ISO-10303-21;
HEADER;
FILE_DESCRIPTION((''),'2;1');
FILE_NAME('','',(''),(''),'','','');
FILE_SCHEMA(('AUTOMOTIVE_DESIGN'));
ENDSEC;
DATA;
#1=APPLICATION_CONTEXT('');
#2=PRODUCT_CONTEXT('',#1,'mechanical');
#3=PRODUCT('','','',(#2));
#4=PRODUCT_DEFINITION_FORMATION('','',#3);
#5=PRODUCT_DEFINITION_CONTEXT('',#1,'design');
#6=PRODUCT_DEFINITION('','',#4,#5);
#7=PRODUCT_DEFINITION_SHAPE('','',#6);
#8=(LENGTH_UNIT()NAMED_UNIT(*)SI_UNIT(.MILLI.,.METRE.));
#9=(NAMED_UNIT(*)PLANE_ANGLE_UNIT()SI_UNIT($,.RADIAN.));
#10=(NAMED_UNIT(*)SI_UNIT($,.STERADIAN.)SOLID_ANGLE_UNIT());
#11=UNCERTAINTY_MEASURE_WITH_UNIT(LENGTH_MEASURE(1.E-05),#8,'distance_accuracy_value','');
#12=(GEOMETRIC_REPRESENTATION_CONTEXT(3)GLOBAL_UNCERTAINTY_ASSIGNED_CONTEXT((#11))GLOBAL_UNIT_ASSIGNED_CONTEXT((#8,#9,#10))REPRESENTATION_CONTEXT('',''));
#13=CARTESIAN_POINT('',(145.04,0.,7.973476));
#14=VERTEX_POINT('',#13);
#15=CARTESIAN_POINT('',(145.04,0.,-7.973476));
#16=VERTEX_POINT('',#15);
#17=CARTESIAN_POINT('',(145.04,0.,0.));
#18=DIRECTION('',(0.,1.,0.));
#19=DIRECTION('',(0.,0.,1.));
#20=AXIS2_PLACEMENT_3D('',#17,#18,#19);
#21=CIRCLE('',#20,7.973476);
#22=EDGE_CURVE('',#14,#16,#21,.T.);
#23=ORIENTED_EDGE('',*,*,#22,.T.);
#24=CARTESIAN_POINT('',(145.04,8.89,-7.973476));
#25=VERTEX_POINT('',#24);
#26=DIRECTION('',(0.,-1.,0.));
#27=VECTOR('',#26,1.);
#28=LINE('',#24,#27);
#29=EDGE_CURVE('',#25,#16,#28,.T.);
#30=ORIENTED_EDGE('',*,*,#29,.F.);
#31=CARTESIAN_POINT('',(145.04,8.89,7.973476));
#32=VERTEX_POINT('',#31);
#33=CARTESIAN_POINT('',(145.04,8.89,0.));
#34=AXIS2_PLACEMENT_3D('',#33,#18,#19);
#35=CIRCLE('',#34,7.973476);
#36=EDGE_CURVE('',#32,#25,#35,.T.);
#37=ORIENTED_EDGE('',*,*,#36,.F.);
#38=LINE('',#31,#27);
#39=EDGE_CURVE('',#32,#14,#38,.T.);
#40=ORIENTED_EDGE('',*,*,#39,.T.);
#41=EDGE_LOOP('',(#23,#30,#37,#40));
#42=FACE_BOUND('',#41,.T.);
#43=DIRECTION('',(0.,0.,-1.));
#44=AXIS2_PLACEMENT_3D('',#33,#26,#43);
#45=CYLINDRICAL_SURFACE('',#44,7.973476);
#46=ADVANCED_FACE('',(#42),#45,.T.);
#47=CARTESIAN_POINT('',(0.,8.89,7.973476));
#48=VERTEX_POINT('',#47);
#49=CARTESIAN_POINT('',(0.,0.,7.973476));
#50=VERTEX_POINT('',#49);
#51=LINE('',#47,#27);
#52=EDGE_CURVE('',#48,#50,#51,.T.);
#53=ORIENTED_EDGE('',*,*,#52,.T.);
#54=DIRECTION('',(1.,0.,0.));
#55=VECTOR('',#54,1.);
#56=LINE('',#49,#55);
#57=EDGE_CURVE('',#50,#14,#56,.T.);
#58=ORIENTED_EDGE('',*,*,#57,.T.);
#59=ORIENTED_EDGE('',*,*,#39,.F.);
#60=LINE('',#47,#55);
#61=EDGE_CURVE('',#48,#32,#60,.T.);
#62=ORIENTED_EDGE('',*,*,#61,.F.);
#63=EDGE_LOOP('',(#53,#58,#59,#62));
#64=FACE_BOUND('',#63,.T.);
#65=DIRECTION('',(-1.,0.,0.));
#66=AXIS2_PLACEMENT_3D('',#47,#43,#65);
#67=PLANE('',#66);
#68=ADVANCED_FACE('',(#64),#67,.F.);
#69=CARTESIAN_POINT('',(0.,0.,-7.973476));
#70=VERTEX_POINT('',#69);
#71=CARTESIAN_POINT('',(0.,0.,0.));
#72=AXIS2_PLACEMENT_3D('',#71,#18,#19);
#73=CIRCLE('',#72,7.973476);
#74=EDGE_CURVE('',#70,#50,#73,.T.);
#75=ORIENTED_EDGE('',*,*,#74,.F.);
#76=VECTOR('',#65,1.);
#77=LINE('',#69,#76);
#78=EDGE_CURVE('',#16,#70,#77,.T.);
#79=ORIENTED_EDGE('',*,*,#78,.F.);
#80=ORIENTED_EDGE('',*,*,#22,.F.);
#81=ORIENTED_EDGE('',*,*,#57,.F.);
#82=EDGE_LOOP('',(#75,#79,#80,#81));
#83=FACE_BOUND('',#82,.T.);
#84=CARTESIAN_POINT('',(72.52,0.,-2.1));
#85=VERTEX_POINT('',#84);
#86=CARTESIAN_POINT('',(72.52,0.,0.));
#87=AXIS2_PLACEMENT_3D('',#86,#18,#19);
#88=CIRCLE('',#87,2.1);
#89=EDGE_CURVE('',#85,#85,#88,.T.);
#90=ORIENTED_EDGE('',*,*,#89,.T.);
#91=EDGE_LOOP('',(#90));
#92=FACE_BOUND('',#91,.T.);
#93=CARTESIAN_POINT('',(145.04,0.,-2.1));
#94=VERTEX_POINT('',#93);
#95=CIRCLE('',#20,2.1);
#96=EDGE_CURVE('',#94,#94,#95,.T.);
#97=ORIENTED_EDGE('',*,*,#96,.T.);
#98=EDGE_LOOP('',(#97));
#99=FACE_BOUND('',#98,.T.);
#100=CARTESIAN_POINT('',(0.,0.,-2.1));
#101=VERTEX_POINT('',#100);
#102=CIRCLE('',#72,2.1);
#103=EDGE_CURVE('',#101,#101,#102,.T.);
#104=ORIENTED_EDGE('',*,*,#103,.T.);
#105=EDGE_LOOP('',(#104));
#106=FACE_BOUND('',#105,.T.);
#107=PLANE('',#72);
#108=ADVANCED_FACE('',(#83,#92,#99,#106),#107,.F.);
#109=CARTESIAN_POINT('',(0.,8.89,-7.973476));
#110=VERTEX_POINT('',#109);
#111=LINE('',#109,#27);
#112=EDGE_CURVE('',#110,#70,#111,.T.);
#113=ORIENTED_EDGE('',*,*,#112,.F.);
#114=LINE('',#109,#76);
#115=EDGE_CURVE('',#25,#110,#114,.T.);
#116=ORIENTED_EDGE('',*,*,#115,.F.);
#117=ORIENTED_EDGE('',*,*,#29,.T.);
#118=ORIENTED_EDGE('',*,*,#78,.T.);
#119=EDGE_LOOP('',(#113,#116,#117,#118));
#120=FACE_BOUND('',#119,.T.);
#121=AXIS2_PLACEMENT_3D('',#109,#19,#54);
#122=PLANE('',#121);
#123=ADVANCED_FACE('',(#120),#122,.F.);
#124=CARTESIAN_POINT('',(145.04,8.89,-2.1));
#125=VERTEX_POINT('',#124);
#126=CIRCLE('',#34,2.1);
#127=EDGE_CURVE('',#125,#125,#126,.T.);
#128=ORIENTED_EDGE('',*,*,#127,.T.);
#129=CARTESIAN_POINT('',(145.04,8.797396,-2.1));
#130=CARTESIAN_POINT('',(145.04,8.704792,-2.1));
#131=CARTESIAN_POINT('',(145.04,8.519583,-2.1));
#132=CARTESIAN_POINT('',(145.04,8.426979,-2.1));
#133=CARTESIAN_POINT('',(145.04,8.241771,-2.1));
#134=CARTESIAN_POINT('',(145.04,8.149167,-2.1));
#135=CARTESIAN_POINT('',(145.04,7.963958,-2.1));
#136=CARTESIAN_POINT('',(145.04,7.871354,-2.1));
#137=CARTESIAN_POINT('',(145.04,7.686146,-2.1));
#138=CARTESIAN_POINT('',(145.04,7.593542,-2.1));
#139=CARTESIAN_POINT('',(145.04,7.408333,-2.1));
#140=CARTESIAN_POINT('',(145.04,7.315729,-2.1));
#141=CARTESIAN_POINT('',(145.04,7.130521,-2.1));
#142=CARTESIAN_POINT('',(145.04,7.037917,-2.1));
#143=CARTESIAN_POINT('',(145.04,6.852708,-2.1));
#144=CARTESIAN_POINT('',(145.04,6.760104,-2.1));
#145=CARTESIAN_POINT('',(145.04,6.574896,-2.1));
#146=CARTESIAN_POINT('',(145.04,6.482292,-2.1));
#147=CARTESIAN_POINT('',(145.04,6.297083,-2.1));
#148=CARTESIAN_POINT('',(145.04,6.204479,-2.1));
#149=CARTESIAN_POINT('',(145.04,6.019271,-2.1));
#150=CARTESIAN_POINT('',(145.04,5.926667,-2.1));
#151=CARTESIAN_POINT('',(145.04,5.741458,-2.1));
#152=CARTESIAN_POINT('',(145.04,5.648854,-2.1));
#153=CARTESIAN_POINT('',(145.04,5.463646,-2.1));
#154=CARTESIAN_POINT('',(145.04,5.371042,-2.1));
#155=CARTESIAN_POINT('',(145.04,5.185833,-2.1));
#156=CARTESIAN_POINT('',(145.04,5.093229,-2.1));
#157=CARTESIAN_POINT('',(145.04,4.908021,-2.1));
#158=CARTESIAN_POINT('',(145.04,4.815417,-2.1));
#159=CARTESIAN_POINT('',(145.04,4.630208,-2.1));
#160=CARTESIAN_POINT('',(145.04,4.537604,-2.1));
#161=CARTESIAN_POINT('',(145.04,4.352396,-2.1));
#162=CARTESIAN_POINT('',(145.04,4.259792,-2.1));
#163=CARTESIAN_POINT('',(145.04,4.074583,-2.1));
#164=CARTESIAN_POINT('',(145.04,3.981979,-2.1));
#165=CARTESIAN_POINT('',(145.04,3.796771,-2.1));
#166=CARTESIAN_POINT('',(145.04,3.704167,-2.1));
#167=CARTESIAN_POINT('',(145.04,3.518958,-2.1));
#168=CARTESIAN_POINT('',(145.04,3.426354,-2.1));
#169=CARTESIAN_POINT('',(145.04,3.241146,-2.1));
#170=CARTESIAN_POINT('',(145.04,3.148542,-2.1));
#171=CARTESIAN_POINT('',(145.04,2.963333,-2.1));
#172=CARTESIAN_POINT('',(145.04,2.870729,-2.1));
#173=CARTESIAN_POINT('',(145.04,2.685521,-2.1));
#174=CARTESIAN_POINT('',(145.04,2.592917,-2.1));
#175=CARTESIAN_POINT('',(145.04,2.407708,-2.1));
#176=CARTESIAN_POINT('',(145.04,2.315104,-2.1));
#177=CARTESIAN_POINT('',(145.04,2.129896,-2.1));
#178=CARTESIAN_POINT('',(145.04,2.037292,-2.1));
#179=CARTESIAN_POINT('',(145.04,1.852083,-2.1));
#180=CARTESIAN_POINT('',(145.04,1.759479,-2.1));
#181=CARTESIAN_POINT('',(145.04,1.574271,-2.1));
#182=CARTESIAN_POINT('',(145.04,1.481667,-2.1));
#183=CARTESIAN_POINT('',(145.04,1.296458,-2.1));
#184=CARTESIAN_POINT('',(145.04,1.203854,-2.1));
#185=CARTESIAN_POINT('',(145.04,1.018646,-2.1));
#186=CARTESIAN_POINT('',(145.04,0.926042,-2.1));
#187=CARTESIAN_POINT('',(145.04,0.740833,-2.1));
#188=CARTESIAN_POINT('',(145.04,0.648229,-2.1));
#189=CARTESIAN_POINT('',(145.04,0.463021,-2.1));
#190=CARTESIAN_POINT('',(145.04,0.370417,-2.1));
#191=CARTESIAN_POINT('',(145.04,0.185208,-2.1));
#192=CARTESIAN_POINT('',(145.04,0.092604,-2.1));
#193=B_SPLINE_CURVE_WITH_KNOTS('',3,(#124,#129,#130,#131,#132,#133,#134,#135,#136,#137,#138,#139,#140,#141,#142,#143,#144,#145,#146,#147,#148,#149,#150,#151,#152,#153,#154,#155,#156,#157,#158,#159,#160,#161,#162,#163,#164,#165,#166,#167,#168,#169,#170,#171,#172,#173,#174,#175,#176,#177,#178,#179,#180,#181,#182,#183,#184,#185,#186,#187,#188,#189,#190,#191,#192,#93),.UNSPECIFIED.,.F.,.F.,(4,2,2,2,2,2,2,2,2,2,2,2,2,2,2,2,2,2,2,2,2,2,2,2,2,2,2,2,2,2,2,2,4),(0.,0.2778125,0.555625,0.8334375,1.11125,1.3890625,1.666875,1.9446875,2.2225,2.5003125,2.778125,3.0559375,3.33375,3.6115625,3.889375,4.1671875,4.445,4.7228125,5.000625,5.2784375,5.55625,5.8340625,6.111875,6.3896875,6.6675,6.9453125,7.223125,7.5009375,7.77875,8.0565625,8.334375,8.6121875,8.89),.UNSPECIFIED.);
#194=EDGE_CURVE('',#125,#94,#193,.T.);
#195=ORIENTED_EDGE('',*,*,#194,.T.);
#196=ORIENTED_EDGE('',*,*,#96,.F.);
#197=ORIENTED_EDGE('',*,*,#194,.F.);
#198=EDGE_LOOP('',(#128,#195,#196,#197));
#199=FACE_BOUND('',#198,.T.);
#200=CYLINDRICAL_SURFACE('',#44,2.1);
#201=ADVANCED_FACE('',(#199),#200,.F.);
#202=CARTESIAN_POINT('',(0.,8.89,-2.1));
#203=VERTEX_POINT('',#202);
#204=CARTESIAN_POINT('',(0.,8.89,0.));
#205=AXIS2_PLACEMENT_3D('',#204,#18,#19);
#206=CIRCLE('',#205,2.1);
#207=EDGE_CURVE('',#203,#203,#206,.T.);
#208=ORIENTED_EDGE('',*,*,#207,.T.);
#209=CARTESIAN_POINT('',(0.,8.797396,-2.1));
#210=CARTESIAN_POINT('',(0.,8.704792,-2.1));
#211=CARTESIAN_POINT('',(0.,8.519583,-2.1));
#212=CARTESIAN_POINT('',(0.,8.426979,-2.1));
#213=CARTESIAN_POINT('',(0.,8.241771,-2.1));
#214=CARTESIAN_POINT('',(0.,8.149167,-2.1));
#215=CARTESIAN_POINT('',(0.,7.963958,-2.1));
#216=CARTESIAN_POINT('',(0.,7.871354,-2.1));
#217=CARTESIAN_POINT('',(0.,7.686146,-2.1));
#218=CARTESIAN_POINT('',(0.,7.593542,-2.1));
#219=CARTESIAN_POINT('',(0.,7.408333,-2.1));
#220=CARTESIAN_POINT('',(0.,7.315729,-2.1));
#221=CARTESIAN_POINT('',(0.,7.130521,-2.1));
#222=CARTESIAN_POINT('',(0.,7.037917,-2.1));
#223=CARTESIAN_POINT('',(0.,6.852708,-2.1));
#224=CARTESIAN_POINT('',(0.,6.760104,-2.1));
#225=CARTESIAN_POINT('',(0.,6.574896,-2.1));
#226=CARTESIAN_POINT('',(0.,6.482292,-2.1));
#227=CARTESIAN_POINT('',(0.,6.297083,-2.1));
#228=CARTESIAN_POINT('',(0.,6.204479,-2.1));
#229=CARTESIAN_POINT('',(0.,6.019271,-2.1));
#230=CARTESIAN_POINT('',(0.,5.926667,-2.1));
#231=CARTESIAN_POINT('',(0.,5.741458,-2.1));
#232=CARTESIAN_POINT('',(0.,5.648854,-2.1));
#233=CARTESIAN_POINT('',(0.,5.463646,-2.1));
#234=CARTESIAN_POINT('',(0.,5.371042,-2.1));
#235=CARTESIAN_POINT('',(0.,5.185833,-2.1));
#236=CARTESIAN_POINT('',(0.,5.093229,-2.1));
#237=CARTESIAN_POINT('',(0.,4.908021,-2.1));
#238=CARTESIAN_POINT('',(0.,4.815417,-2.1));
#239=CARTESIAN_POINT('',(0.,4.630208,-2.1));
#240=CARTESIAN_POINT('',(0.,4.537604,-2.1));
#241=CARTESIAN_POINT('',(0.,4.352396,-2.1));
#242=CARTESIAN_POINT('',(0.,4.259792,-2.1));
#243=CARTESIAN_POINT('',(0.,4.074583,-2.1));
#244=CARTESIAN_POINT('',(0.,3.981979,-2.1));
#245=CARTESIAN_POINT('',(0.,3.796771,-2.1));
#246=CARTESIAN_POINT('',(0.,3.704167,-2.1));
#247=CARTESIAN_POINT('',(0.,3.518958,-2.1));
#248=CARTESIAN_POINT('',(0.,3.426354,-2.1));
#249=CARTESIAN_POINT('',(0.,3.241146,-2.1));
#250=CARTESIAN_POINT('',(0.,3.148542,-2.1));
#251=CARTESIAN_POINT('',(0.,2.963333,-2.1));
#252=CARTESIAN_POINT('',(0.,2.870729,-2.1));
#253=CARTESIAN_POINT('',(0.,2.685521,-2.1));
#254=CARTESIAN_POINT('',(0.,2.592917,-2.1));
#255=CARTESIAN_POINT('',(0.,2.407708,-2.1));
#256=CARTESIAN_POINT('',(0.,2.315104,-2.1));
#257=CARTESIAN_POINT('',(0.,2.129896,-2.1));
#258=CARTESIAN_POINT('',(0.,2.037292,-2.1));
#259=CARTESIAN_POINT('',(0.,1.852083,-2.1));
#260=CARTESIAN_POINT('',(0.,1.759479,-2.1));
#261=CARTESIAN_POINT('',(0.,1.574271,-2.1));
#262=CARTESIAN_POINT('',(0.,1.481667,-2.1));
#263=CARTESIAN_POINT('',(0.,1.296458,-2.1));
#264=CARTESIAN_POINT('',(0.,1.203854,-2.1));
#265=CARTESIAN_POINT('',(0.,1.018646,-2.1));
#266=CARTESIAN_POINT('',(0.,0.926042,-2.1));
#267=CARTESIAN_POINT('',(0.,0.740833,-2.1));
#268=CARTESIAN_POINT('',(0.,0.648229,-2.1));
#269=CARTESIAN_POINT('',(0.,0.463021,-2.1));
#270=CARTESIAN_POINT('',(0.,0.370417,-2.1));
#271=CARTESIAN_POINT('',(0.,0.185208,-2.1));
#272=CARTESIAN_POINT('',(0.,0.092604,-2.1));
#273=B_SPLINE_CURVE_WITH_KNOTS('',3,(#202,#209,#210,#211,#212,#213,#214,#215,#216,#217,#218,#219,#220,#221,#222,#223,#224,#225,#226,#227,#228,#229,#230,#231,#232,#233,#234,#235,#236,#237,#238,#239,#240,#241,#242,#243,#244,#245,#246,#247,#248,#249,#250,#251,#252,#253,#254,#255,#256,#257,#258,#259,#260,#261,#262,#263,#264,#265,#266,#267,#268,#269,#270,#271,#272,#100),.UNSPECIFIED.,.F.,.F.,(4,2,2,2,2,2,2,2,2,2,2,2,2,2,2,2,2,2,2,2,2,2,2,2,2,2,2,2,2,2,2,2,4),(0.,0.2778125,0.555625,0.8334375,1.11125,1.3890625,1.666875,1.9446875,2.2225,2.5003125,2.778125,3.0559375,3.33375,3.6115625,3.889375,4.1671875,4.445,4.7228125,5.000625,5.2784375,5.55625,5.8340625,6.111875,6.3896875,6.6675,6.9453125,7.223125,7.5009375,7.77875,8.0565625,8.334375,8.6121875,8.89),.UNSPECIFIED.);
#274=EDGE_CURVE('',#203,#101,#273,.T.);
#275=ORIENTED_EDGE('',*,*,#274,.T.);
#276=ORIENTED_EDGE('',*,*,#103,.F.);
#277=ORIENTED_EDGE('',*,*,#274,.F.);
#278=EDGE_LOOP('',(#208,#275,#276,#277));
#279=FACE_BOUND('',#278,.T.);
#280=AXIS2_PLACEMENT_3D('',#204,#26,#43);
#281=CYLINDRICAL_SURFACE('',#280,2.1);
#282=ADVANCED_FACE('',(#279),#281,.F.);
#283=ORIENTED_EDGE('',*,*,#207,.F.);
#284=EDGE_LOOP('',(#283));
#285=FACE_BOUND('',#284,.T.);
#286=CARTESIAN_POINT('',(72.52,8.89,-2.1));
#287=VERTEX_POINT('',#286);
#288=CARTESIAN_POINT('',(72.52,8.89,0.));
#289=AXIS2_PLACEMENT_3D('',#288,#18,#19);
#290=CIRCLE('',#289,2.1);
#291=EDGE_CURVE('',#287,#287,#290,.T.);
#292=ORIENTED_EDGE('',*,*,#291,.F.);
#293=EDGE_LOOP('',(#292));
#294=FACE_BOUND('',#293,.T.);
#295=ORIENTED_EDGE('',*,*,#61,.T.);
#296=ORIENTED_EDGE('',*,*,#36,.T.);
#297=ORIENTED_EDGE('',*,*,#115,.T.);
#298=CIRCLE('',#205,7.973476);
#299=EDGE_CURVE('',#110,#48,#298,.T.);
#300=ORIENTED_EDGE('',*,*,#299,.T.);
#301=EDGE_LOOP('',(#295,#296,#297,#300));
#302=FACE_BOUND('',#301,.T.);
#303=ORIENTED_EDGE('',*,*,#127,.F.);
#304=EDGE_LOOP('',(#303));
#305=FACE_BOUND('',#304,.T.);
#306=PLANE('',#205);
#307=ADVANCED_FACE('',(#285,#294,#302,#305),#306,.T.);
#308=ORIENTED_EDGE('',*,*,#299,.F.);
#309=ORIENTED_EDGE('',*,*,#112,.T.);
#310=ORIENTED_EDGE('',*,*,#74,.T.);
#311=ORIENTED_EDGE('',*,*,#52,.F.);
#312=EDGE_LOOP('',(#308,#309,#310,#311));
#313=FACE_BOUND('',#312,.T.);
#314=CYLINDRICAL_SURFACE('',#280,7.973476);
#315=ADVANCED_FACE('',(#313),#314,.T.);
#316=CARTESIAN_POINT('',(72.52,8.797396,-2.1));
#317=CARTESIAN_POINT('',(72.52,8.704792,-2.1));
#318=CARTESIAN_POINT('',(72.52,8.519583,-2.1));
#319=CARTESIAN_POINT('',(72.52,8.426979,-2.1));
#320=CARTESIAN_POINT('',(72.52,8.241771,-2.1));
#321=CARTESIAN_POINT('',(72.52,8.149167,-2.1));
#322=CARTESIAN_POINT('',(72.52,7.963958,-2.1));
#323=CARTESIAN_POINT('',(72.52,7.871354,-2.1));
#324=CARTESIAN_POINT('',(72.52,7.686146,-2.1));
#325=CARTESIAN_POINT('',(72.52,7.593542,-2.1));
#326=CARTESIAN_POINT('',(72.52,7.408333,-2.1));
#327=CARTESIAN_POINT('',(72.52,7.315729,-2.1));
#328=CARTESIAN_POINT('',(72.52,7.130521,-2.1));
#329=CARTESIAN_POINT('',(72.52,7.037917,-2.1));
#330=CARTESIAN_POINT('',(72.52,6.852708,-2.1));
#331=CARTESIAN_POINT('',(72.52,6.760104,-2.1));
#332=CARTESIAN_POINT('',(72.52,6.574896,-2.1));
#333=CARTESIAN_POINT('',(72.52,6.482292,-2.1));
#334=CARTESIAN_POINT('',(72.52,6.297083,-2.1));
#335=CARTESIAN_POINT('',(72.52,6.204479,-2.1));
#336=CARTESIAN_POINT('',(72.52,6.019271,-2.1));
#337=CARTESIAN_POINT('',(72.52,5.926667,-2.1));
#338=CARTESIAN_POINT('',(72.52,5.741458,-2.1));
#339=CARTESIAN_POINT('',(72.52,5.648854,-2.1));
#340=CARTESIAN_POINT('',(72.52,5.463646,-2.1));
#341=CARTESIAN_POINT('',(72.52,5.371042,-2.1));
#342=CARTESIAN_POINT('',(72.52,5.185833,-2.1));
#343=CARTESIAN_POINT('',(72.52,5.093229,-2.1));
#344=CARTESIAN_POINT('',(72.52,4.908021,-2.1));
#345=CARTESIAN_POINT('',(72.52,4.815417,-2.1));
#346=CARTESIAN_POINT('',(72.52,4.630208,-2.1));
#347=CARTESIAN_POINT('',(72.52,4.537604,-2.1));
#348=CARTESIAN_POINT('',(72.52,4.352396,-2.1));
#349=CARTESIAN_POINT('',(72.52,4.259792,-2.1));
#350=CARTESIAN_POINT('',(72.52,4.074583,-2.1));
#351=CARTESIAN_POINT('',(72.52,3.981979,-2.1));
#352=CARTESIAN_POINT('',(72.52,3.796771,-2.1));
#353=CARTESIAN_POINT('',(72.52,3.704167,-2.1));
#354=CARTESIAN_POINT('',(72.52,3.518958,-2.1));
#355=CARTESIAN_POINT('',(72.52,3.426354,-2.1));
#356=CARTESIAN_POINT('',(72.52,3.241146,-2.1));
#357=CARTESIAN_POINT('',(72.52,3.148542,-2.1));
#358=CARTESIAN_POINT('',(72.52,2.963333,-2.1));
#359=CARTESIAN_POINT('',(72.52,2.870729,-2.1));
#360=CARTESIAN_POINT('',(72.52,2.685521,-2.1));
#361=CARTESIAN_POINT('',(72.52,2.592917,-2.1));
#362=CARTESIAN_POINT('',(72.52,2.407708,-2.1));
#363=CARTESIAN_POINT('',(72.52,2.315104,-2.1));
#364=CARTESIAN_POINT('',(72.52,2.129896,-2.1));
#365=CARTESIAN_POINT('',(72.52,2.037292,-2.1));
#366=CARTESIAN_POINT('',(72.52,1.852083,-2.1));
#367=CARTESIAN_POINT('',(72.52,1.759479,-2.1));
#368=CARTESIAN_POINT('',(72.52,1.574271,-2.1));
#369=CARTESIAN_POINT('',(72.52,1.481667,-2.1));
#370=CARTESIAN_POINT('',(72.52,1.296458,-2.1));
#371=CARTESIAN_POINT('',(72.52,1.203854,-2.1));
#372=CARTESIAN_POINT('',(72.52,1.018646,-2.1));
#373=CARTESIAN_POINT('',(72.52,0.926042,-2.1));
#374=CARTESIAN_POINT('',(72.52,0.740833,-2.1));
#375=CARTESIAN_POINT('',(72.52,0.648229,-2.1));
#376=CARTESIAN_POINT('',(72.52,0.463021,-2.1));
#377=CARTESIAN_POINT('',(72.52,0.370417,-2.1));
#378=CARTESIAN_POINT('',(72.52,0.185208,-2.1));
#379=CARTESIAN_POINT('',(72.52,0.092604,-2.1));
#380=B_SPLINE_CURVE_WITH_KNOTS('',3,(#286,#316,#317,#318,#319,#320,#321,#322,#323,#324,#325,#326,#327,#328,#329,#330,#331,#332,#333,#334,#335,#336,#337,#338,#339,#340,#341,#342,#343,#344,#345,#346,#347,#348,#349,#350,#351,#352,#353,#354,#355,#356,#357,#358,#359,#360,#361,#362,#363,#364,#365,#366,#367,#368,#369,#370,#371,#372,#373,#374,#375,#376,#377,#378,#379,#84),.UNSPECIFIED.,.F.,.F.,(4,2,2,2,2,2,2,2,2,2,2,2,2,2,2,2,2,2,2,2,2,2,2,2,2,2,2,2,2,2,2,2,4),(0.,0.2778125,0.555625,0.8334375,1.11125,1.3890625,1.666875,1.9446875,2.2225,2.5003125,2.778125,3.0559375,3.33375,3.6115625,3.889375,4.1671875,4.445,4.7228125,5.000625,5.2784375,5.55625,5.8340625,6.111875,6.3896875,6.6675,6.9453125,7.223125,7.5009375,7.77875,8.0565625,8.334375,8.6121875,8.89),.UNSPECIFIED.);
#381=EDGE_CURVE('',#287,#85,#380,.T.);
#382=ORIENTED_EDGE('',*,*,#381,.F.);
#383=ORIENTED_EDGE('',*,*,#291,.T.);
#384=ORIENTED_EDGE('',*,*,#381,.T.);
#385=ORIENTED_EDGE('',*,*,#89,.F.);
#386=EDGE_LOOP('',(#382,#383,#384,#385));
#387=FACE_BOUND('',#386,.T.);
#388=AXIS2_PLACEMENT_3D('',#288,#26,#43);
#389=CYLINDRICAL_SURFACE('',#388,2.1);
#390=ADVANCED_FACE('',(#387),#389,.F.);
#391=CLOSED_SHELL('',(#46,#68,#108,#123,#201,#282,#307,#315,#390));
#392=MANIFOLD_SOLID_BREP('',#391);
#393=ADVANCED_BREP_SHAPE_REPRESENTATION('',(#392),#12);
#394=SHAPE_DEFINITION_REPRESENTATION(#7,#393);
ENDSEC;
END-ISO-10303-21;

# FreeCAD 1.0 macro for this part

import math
import FreeCAD as App
import Part
import Sketcher
Q = App.Units.Quantity

doc = App.newDocument("Part")
params = doc.addObject("Spreadsheet::Sheet", "Params")
for row, (alias, value) in enumerate([
    ("sketch1_diameter", "4.2 mm"),
    ("sketch1_width", "145.04 mm"),
    ("pad1_length", "8.89 mm"),
], start=1):
    params.set(f"A{row}", alias)
    params.set(f"B{row}", "=" + value)
    params.setAlias(f"B{row}", alias)

body = doc.addObject("PartDesign::Body", "Body")

sketch1 = body.newObject("Sketcher::SketchObject", "Sketch")
sketch1.AttachmentSupport = (doc.getObject("XZ_Plane"), [""])
sketch1.MapMode = "FlatFace"
sketch1.addGeometry(Part.LineSegment(App.Vector(145, -8, 0), App.Vector(0, -8, 0)), False)
sketch1.addGeometry(Part.ArcOfCircle(Part.Circle(App.Vector(0, 0, 0), App.Vector(0, 0, 1), 8), math.radians(90), math.radians(270)), False)
sketch1.addGeometry(Part.LineSegment(App.Vector(0, 8, 0), App.Vector(145, 8, 0)), False)
sketch1.addGeometry(Part.ArcOfCircle(Part.Circle(App.Vector(145, 0, 0), App.Vector(0, 0, 1), 8), math.radians(-90), math.radians(90)), False)
sketch1.addGeometry(Part.Circle(App.Vector(145, 0, 0), App.Vector(0, 0, 1), 2.1), False)
sketch1.addGeometry(Part.Circle(App.Vector(72.5, 0, 0), App.Vector(0, 0, 1), 2.1), False)
sketch1.addGeometry(Part.Circle(App.Vector(0, 0, 0), App.Vector(0, 0, 1), 2.1), False)
sketch1.addConstraint(Sketcher.Constraint("Tangent", 0, 2, 1, 2))
sketch1.addConstraint(Sketcher.Constraint("Tangent", 1, 1, 2, 1))
sketch1.addConstraint(Sketcher.Constraint("Tangent", 2, 2, 3, 2))
sketch1.addConstraint(Sketcher.Constraint("Tangent", 3, 1, 0, 1))
sketch1.addConstraint(Sketcher.Constraint("Horizontal", 0))
sketch1.addConstraint(Sketcher.Constraint("Horizontal", 2))
sketch1.addConstraint(Sketcher.Constraint("Coincident", 1, 3, -1, 1))
sketch1.addConstraint(Sketcher.Constraint("Coincident", 6, 3, -1, 1))
sketch1.addConstraint(Sketcher.Constraint("Coincident", 4, 3, 3, 3))
sketch1.addConstraint(Sketcher.Constraint("Equal", 4, 5))
sketch1.addConstraint(Sketcher.Constraint("Equal", 5, 6))
sketch1.addConstraint(Sketcher.Constraint("PointOnObject", 5, 3, -1))
sketch1.addConstraint(Sketcher.Constraint("Diameter", 4, Q("4.2 mm")))
sketch1.addConstraint(Sketcher.Constraint("DistanceX", 0, 2, 0, 1, Q("145.04 mm")))
sketch1.addConstraint(Sketcher.Constraint("DistanceX", -1, 1, 5, 3, Q("72.52 mm")))
sketch1.addConstraint(Sketcher.Constraint("Radius", 1, Q("7.973476 mm")))
sketch1.setExpression("Constraints[12]", "Params.sketch1_diameter")
sketch1.setExpression("Constraints[13]", "Params.sketch1_width")
pad1 = body.newObject("PartDesign::Pad", "Pad")
pad1.Profile = sketch1
pad1.setExpression("Length", "Params.pad1_length")
pad1.Reversed = True

doc.recompute()
